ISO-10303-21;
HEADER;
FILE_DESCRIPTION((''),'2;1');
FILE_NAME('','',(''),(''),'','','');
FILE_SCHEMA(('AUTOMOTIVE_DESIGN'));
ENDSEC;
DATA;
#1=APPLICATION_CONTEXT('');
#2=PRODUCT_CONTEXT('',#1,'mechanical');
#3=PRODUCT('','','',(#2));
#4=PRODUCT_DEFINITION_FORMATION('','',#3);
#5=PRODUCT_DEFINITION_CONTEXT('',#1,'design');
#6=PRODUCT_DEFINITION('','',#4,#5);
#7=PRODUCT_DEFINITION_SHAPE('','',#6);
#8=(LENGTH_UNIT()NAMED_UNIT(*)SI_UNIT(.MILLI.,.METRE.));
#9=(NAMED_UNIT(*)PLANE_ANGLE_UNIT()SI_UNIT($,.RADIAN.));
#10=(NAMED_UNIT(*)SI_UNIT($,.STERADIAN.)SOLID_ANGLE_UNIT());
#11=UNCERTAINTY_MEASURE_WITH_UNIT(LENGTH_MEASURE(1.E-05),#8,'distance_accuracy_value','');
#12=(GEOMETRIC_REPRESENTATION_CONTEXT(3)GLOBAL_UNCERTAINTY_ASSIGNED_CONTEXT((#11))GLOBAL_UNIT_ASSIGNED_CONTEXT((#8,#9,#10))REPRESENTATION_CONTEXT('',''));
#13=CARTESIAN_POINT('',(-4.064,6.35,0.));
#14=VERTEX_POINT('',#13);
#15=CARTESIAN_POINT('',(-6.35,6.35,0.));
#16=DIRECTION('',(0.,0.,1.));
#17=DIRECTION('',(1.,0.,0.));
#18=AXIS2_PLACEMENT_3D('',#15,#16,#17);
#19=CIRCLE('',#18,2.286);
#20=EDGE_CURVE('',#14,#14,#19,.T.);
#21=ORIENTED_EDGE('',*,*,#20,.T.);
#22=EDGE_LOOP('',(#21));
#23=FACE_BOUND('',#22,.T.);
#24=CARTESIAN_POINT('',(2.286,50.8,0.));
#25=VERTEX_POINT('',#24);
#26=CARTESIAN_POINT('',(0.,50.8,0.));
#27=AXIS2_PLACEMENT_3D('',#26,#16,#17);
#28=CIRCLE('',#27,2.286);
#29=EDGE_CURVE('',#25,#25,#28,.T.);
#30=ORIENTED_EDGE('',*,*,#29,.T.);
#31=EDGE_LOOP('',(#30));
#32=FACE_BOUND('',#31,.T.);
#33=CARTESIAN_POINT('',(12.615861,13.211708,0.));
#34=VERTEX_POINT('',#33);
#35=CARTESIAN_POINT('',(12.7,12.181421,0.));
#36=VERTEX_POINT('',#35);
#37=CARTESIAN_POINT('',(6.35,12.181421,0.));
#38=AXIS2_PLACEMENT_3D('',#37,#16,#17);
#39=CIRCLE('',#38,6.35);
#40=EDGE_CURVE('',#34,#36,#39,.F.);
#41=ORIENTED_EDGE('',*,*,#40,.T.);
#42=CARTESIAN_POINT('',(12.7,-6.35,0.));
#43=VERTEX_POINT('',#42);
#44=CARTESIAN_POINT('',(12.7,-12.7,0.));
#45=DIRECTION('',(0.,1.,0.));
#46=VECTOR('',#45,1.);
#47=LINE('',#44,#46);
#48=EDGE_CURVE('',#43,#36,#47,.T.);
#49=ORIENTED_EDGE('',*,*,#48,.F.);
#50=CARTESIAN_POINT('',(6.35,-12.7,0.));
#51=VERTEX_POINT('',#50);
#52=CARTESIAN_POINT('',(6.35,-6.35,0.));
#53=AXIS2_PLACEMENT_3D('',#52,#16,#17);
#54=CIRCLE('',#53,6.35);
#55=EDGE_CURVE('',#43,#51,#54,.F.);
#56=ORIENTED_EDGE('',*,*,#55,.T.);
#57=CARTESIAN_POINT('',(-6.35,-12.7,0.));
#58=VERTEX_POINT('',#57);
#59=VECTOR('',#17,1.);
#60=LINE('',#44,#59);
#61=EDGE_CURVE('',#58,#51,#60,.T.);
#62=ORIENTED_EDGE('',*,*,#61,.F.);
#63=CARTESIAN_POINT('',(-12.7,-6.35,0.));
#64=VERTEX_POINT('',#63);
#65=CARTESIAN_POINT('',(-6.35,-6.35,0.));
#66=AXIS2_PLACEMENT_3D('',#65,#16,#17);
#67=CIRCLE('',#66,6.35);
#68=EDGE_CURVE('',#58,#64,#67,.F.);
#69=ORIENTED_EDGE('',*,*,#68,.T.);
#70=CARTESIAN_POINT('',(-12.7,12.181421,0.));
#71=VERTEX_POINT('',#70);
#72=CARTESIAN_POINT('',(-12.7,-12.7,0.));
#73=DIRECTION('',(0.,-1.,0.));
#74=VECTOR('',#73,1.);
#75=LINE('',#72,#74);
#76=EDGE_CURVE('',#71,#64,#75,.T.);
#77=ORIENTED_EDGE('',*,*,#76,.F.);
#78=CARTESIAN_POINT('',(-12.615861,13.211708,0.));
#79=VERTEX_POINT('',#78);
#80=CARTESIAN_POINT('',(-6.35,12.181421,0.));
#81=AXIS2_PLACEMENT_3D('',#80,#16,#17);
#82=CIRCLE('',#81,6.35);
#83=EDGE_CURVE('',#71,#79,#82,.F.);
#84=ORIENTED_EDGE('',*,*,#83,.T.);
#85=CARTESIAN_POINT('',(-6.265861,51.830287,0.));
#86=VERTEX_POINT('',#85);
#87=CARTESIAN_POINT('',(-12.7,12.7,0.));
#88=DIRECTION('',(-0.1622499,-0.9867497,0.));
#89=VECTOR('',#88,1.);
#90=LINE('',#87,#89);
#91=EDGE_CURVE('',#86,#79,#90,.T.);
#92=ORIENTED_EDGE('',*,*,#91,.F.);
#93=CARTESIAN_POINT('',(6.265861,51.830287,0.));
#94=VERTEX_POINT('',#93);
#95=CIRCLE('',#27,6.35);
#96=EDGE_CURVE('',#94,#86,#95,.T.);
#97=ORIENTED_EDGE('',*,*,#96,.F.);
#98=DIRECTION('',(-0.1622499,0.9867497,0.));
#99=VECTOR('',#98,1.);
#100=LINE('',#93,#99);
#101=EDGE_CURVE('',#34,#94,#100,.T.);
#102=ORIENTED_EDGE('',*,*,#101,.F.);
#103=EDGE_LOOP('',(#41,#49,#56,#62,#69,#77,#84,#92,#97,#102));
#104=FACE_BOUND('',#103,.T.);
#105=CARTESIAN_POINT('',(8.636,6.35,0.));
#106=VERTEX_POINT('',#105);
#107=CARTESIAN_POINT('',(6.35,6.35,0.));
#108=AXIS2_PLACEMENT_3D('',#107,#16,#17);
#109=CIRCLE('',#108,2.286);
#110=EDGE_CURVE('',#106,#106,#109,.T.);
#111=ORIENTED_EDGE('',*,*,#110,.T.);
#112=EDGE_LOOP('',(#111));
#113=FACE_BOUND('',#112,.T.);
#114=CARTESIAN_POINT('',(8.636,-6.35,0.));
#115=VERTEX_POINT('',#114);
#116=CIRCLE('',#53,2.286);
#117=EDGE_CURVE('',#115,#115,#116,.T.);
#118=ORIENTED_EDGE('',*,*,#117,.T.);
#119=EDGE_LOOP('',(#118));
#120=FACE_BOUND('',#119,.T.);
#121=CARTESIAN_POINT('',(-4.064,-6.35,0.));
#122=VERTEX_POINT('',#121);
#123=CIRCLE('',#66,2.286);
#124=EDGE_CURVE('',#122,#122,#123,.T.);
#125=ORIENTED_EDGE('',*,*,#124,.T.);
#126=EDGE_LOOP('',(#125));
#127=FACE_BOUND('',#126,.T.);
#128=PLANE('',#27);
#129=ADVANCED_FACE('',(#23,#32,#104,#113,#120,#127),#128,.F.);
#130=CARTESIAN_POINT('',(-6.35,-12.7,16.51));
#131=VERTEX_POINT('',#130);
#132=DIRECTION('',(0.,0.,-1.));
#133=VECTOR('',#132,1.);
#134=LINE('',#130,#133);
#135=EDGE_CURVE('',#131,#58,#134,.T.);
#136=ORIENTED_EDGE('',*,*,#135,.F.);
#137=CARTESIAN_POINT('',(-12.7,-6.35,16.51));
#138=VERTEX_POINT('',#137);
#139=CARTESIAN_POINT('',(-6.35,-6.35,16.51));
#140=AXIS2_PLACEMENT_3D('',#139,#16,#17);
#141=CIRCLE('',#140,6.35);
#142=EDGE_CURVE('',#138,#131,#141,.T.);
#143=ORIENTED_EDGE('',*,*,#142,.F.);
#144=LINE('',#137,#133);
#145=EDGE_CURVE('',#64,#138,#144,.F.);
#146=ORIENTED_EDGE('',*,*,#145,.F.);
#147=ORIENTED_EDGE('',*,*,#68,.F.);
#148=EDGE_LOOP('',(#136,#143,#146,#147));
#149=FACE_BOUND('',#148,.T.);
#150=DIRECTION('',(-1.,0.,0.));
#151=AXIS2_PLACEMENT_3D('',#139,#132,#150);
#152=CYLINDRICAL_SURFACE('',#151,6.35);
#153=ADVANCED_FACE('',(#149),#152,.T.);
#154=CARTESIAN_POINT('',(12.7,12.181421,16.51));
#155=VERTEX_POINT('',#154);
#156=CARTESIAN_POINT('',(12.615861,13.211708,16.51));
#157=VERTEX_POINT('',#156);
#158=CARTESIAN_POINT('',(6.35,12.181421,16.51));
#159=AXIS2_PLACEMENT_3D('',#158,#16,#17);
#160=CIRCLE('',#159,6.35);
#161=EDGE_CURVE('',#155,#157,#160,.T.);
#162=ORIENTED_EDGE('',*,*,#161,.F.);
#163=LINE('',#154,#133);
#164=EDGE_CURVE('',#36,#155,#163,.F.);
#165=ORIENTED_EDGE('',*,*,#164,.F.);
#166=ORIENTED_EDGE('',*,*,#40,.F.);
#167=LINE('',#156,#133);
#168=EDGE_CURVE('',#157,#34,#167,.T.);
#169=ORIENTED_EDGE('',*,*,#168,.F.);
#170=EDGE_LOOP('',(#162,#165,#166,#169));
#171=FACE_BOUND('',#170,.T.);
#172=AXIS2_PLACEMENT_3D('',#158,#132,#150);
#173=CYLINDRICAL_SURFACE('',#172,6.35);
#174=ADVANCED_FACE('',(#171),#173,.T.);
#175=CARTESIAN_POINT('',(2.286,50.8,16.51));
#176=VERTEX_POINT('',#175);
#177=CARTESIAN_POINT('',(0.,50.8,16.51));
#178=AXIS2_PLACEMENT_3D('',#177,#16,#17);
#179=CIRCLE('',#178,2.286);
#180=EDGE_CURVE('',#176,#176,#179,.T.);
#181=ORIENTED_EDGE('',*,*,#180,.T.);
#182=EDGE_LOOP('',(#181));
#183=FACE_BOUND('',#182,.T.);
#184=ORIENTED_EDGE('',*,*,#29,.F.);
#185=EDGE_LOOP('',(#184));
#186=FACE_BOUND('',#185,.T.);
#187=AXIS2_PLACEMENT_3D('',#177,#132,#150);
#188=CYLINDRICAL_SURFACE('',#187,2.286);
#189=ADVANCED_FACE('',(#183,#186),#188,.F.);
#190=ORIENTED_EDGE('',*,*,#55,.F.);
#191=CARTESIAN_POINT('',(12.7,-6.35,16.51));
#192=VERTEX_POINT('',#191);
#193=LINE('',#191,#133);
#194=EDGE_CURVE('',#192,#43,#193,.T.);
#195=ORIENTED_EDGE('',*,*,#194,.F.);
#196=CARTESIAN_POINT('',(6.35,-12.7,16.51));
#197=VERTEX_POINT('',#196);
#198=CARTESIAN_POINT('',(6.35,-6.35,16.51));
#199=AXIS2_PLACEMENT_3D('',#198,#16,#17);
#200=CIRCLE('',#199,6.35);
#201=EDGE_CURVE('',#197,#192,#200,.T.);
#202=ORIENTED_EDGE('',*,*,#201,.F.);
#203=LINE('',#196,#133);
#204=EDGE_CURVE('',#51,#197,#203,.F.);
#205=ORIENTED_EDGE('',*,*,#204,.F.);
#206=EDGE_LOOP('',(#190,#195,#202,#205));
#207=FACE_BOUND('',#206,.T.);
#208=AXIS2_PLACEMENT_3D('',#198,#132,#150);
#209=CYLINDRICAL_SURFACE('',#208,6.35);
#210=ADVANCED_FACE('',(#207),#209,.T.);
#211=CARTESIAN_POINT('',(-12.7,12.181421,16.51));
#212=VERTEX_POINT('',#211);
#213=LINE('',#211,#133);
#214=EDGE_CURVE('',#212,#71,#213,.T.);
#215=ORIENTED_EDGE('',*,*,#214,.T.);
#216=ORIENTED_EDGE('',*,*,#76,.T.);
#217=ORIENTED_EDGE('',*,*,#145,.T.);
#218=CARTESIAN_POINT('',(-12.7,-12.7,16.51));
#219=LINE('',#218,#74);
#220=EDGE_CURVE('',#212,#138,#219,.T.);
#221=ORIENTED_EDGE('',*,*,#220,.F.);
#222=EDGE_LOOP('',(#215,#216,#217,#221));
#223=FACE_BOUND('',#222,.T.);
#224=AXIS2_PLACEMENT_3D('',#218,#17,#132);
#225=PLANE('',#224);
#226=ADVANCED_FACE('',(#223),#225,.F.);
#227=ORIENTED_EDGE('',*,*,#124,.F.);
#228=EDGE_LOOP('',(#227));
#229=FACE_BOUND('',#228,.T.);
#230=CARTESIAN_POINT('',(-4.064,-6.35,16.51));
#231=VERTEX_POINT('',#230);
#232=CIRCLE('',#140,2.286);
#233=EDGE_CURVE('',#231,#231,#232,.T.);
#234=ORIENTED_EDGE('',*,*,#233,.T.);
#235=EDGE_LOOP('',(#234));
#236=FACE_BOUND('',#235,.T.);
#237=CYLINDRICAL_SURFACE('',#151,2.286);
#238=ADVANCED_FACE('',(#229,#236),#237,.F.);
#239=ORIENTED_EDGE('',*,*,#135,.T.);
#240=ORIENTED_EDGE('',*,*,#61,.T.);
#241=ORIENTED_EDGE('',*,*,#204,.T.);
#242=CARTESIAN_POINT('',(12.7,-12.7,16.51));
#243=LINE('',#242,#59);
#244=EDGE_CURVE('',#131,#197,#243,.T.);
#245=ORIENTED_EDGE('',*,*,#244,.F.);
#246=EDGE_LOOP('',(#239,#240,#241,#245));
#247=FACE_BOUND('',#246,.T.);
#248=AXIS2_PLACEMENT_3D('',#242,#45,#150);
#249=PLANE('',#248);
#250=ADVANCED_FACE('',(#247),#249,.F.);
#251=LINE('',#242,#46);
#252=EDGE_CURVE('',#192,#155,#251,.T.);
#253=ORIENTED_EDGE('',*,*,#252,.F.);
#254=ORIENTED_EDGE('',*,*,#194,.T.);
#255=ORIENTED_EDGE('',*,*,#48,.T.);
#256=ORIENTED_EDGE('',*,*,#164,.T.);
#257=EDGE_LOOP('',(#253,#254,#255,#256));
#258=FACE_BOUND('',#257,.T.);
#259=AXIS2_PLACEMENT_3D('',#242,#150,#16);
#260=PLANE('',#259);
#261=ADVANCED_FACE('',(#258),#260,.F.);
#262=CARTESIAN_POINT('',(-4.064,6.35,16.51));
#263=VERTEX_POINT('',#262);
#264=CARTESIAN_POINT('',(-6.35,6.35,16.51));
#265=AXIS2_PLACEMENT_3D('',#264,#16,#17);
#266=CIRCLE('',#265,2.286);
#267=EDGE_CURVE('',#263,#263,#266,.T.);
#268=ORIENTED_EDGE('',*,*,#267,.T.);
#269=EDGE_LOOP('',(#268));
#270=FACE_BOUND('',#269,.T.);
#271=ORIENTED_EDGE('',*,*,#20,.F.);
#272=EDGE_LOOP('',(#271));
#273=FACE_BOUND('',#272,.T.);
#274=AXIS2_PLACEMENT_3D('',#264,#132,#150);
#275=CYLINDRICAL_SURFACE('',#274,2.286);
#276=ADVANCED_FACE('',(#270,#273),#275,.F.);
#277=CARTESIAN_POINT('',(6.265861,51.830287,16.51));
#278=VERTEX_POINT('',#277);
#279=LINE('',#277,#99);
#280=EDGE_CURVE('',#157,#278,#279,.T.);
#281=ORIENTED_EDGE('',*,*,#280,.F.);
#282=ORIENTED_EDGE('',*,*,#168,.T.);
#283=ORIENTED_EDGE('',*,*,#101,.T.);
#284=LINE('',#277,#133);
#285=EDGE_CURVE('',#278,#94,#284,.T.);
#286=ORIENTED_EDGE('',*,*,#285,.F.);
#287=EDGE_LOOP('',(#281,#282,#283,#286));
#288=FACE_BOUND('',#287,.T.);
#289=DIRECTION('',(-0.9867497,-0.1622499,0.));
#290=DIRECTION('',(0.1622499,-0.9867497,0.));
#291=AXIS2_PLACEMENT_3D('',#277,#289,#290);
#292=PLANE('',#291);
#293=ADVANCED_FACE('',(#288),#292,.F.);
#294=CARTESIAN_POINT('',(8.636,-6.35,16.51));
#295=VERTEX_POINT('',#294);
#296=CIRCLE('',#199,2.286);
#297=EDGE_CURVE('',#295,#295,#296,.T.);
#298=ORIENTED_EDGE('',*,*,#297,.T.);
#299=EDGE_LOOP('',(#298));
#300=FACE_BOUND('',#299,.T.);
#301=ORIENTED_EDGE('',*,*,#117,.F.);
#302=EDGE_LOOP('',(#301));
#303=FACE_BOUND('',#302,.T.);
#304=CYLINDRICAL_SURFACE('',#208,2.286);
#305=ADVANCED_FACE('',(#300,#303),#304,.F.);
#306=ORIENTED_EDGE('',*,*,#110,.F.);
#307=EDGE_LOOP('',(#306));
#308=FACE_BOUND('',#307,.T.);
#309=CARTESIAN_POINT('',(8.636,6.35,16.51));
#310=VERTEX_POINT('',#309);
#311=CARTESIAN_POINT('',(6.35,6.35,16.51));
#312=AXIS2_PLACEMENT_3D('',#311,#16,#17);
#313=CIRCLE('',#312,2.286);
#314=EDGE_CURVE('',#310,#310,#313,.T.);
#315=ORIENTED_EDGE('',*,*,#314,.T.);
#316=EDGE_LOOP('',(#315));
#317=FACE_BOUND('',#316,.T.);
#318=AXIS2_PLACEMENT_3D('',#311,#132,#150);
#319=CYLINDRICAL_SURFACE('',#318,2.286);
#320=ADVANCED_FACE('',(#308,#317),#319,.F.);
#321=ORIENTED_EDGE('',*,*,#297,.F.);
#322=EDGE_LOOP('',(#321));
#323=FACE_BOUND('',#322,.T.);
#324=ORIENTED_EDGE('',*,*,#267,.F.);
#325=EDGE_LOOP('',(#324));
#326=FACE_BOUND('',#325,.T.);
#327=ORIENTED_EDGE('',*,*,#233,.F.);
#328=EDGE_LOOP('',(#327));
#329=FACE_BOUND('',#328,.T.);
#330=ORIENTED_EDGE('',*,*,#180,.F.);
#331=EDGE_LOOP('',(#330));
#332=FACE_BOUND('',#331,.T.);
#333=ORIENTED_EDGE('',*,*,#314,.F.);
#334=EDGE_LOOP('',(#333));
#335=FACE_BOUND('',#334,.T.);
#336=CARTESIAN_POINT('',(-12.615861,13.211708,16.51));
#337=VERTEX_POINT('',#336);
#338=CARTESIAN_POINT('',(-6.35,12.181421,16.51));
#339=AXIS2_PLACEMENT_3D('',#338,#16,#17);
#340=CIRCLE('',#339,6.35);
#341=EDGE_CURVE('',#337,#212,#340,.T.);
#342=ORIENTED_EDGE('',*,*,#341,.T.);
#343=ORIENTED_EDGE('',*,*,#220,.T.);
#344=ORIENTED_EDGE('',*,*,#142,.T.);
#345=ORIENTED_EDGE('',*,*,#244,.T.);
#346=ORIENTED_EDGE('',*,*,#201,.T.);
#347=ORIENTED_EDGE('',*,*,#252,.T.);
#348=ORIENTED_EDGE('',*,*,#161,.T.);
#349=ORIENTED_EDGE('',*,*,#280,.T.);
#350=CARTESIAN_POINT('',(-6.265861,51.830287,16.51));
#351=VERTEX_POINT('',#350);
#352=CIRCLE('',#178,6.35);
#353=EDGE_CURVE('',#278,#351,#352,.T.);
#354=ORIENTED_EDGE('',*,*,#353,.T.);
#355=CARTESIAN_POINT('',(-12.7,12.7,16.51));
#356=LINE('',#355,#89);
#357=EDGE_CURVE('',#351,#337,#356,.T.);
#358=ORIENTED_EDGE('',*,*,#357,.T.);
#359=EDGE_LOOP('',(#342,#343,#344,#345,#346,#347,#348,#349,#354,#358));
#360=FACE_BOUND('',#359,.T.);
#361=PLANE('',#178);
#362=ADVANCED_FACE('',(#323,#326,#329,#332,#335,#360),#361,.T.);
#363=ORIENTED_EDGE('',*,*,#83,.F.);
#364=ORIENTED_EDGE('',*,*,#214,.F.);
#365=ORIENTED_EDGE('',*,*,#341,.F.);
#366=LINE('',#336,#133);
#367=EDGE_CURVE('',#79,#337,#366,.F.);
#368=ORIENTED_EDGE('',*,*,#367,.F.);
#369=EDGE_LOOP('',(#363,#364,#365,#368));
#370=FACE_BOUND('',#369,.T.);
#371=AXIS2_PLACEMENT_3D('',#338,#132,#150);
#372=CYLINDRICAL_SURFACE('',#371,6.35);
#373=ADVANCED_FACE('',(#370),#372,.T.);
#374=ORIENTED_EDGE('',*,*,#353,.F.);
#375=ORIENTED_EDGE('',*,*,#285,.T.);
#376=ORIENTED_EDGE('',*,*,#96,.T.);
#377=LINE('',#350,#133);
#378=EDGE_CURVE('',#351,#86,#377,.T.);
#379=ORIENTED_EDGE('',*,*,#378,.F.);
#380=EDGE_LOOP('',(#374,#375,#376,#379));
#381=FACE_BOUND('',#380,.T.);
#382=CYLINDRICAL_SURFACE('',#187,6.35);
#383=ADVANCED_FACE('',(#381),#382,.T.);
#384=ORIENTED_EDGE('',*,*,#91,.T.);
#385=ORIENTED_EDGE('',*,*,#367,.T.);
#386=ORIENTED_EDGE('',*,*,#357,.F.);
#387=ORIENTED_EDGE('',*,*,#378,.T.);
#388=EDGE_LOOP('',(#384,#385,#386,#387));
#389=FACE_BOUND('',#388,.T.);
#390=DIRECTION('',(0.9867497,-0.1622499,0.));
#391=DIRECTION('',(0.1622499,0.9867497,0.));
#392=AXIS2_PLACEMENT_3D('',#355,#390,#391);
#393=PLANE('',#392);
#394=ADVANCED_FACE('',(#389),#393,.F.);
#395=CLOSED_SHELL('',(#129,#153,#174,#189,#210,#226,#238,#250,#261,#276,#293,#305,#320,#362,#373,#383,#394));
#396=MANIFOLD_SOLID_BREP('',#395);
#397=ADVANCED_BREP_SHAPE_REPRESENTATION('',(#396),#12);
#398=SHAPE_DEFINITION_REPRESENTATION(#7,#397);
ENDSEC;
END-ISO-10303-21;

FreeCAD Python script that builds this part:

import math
import FreeCAD as App
import Part
import Sketcher

V = App.Vector
Q = App.Units.Quantity


def edges_at(feature, points):
    """Names of the edges that pass closest to the given points."""
    edges = feature.Shape.Edges
    near = lambda p: min(range(len(edges)), key=lambda i: edges[i].distToShape(Part.Vertex(*p))[0])
    return sorted({f"Edge{near(p) + 1}" for p in points})

doc = App.newDocument("Part")
body = doc.addObject("PartDesign::Body", "Body")

sketch1 = doc.addObject("Sketcher::SketchObject", "Sketch")
body.addObject(sketch1)
sketch1.AttachmentSupport = (doc.XY_Plane, [""])
sketch1.MapMode = "FlatFace"
sketch1.addGeometry(Part.LineSegment(V(-6.3, 51.8, 0), V(-12.7, 12.7, 0)), False)
sketch1.addGeometry(Part.LineSegment(V(-12.7, 12.7, 0), V(-12.7, -12.7, 0)), False)
sketch1.addGeometry(Part.LineSegment(V(-12.7, -12.7, 0), V(12.7, -12.7, 0)), False)
sketch1.addGeometry(Part.LineSegment(V(12.7, -12.7, 0), V(12.7, 12.7, 0)), False)
sketch1.addGeometry(Part.LineSegment(V(12.7, 12.7, 0), V(6.3, 51.8, 0)), False)
sketch1.addGeometry(Part.ArcOfCircle(Part.Circle(V(0, 50.8, 0), V(0, 0, 1), 6.3), math.radians(9), math.radians(171)), False)
sketch1.addGeometry(Part.Circle(V(6.3, -6.3, 0), V(0, 0, 1), 2.3), False)
sketch1.addGeometry(Part.Circle(V(6.3, 6.3, 0), V(0, 0, 1), 2.3), False)
sketch1.addGeometry(Part.Circle(V(-6.3, -6.3, 0), V(0, 0, 1), 2.3), False)
sketch1.addGeometry(Part.Circle(V(-6.3, 6.3, 0), V(0, 0, 1), 2.3), False)
sketch1.addGeometry(Part.Circle(V(0, 50.8, 0), V(0, 0, 1), 2.3), False)
sketch1.addConstraint(Sketcher.Constraint("Coincident", 0, 2, 1, 1))
sketch1.addConstraint(Sketcher.Constraint("Coincident", 1, 2, 2, 1))
sketch1.addConstraint(Sketcher.Constraint("Coincident", 2, 2, 3, 1))
sketch1.addConstraint(Sketcher.Constraint("Coincident", 3, 2, 4, 1))
sketch1.addConstraint(Sketcher.Constraint("Tangent", 4, 2, 5, 1))
sketch1.addConstraint(Sketcher.Constraint("Tangent", 5, 2, 0, 1))
sketch1.addConstraint(Sketcher.Constraint("Vertical", 1))
sketch1.addConstraint(Sketcher.Constraint("Horizontal", 2))
sketch1.addConstraint(Sketcher.Constraint("Vertical", 3))
sketch1.addConstraint(Sketcher.Constraint("Coincident", 10, 3, 5, 3))
sketch1.addConstraint(Sketcher.Constraint("Equal", 6, 7))
sketch1.addConstraint(Sketcher.Constraint("Equal", 7, 8))
sketch1.addConstraint(Sketcher.Constraint("Equal", 8, 9))
sketch1.addConstraint(Sketcher.Constraint("Equal", 9, 10))
sketch1.addConstraint(Sketcher.Constraint("Symmetric", 7, 3, 8, 3, -1, 1))
sketch1.addConstraint(Sketcher.Constraint("Symmetric", 6, 3, 9, 3, -1, 1))
sketch1.addConstraint(Sketcher.Constraint("Symmetric", 0, 2, 2, 2, -1, 1))
sketch1.addConstraint(Sketcher.Constraint("Symmetric", 6, 3, 8, 3, -2))
sketch1.addConstraint(Sketcher.Constraint("Symmetric", 4, 2, 5, 2, -2))
sketch1.addConstraint(Sketcher.Constraint("Equal", 2, 1))
sketch1.addConstraint(Sketcher.Constraint("Diameter", 6, Q("0.18 in")))
sketch1.addConstraint(Sketcher.Constraint("DistanceX", 2, 1, 2, 2, Q("1 in")))
sketch1.addConstraint(Sketcher.Constraint("Radius", 5, Q("0.25 in")))
sketch1.addConstraint(Sketcher.Constraint("DistanceY", -1, 1, 5, 3, Q("2 in")))
sketch1.addConstraint(Sketcher.Constraint("DistanceY", 6, 3, 7, 3, Q("0.5 in")))
sketch1.addConstraint(Sketcher.Constraint("DistanceX", 8, 3, 6, 3, Q("0.5 in")))
pad1 = doc.addObject("PartDesign::Pad", "Pad")
body.addObject(pad1)
pad1.Profile = sketch1
pad1.Length = Q("0.65 in")
doc.recompute()

fillet = doc.addObject("PartDesign::Fillet", "Fillet")
body.addObject(fillet)
fillet.Base = (pad1, edges_at(pad1, [
    (-12.7, 12.7, 8.255),
    (12.7, 12.7, 8.255),
    (12.7, -12.7, 8.255),
    (-12.7, -12.7, 8.255),
]))
fillet.Radius = Q("0.25 in")

doc.recompute()
